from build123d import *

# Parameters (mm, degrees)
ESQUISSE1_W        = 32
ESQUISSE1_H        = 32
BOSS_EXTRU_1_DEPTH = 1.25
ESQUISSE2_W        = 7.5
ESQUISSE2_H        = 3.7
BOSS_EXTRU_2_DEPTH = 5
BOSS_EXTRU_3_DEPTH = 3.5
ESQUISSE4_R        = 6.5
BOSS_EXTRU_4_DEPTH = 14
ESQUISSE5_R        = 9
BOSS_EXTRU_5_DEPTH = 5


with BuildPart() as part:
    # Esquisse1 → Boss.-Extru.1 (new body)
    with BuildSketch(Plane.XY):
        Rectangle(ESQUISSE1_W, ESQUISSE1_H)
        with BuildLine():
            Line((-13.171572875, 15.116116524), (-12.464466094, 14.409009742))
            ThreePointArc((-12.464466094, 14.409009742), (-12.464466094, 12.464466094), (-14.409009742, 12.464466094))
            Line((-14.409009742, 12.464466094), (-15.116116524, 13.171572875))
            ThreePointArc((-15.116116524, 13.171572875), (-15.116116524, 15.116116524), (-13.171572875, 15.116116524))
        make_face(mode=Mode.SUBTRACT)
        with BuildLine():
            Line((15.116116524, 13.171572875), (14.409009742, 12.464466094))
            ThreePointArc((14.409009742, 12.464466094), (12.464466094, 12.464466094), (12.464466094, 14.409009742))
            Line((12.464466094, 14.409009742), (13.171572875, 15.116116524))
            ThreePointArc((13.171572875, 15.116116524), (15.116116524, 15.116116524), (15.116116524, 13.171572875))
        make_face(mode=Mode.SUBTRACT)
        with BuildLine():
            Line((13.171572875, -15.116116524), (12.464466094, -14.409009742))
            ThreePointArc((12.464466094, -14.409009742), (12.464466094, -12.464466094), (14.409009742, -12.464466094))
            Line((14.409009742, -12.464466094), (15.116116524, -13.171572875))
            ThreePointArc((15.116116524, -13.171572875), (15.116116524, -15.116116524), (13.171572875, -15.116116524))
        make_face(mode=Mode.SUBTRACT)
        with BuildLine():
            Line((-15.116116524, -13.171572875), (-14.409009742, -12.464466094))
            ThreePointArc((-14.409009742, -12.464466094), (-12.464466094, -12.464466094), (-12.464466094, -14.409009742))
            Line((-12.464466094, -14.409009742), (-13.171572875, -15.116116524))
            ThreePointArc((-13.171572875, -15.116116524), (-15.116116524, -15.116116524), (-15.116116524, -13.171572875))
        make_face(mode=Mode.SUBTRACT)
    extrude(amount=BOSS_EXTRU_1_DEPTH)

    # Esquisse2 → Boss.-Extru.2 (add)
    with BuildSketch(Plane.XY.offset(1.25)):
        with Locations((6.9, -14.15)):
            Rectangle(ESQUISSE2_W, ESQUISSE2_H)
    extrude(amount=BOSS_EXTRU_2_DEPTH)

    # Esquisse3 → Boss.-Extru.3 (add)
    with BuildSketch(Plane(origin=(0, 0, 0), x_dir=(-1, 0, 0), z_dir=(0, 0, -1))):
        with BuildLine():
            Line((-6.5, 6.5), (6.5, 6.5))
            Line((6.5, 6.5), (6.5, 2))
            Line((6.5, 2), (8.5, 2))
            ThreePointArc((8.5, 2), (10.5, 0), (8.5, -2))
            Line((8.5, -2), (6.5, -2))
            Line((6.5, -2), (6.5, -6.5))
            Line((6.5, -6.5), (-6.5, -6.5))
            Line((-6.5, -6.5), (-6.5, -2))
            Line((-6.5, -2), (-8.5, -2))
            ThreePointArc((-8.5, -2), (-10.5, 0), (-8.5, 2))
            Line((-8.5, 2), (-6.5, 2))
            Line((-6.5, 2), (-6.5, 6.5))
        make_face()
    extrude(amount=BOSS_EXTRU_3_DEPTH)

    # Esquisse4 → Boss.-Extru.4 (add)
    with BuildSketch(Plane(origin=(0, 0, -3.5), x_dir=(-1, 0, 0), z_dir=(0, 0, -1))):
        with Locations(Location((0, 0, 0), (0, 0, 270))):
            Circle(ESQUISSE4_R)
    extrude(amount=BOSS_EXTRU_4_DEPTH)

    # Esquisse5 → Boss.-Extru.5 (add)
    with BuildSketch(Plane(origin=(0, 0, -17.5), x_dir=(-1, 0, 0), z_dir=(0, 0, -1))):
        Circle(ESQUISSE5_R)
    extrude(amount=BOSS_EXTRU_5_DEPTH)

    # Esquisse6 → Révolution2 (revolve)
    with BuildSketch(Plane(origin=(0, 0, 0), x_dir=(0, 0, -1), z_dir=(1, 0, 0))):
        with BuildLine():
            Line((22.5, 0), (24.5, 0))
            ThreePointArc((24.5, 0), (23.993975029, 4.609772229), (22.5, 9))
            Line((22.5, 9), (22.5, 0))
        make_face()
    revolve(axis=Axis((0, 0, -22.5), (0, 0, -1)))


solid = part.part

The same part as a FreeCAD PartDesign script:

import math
import FreeCAD as App
import Part
import Sketcher

doc = App.newDocument("Part")
body = doc.addObject("PartDesign::Body", "Body")

# Sketch on XY plane
sketch1 = doc.addObject("Sketcher::SketchObject", "Sketch")
body.addObject(sketch1)
sketch1.AttachmentSupport = (doc.XY_Plane, [""])
sketch1.MapMode = "FlatFace"
sketch1.addGeometry([
    Part.LineSegment(App.Vector(-16, 16, 0), App.Vector(-16, -16, 0)),  # 0
    Part.LineSegment(App.Vector(-16, -16, 0), App.Vector(16, -16, 0)),  # 1
    Part.LineSegment(App.Vector(16, -16, 0), App.Vector(16, 16, 0)),  # 2
    Part.LineSegment(App.Vector(16, 16, 0), App.Vector(-16, 16, 0)),  # 3
    Part.ArcOfCircle(Part.Circle(App.Vector(-14.143845, -14.143845, 0), App.Vector(0, 0, 1), 1.375), math.radians(135), math.radians(315)),  # 4
    Part.LineSegment(App.Vector(-15.116117, -13.171573, 0), App.Vector(-14.40901, -12.464466, 0)),  # 5
    Part.ArcOfCircle(Part.Circle(App.Vector(-13.436738, -13.436738, 0), App.Vector(0, 0, 1), 1.375), math.radians(-45), math.radians(135)),  # 6
    Part.LineSegment(App.Vector(-12.464466, -14.40901, 0), App.Vector(-13.171573, -15.116117, 0)),  # 7
    Part.ArcOfCircle(Part.Circle(App.Vector(14.143845, -14.143845, 0), App.Vector(0, 0, 1), 1.375), math.radians(-135), math.radians(45)),  # 8
    Part.LineSegment(App.Vector(13.171573, -15.116117, 0), App.Vector(12.464466, -14.40901, 0)),  # 9
    Part.ArcOfCircle(Part.Circle(App.Vector(13.436738, -13.436738, 0), App.Vector(0, 0, 1), 1.375), math.radians(45), math.radians(225)),  # 10
    Part.LineSegment(App.Vector(14.40901, -12.464466, 0), App.Vector(15.116117, -13.171573, 0)),  # 11
    Part.ArcOfCircle(Part.Circle(App.Vector(-14.143845, 14.143845, 0), App.Vector(0, 0, 1), 1.375), math.radians(45), math.radians(225)),  # 12
    Part.LineSegment(App.Vector(-13.171573, 15.116117, 0), App.Vector(-12.464466, 14.40901, 0)),  # 13
    Part.ArcOfCircle(Part.Circle(App.Vector(-13.436738, 13.436738, 0), App.Vector(0, 0, 1), 1.375), math.radians(-135), math.radians(45)),  # 14
    Part.LineSegment(App.Vector(-14.40901, 12.464466, 0), App.Vector(-15.116117, 13.171573, 0)),  # 15
    Part.ArcOfCircle(Part.Circle(App.Vector(14.143845, 14.143845, 0), App.Vector(0, 0, 1), 1.375), math.radians(-45), math.radians(135)),  # 16
    Part.LineSegment(App.Vector(15.116117, 13.171573, 0), App.Vector(14.40901, 12.464466, 0)),  # 17
    Part.ArcOfCircle(Part.Circle(App.Vector(13.436738, 13.436738, 0), App.Vector(0, 0, 1), 1.375), math.radians(135), math.radians(315)),  # 18
    Part.LineSegment(App.Vector(12.464466, 14.40901, 0), App.Vector(13.171573, 15.116117, 0)),  # 19
], False)
sketch1.addConstraint([
    Sketcher.Constraint("Coincident", 0, 2, 1, 1),
    Sketcher.Constraint("Coincident", 1, 2, 2, 1),
    Sketcher.Constraint("Coincident", 2, 2, 3, 1),
    Sketcher.Constraint("Coincident", 3, 2, 0, 1),
    Sketcher.Constraint("Tangent", 4, 1, 5, 1),
    Sketcher.Constraint("Tangent", 5, 2, 6, 2),
    Sketcher.Constraint("Tangent", 6, 1, 7, 1),
    Sketcher.Constraint("Tangent", 7, 2, 4, 2),
    Sketcher.Constraint("Tangent", 8, 1, 9, 1),
    Sketcher.Constraint("Tangent", 9, 2, 10, 2),
    Sketcher.Constraint("Tangent", 10, 1, 11, 1),
    Sketcher.Constraint("Tangent", 11, 2, 8, 2),
    Sketcher.Constraint("Tangent", 12, 1, 13, 1),
    Sketcher.Constraint("Tangent", 13, 2, 14, 2),
    Sketcher.Constraint("Tangent", 14, 1, 15, 1),
    Sketcher.Constraint("Tangent", 15, 2, 12, 2),
    Sketcher.Constraint("Tangent", 16, 1, 17, 1),
    Sketcher.Constraint("Tangent", 17, 2, 18, 2),
    Sketcher.Constraint("Tangent", 18, 1, 19, 1),
    Sketcher.Constraint("Tangent", 19, 2, 16, 2),
    Sketcher.Constraint("Vertical", 0),
    Sketcher.Constraint("Horizontal", 1),
    Sketcher.Constraint("Vertical", 2),
    Sketcher.Constraint("Horizontal", 3),
    Sketcher.Constraint("Equal", 4, 6),
    Sketcher.Constraint("Equal", 6, 8),
    Sketcher.Constraint("Equal", 8, 10),
    Sketcher.Constraint("Equal", 10, 12),
    Sketcher.Constraint("Equal", 12, 14),
    Sketcher.Constraint("Equal", 14, 16),
    Sketcher.Constraint("Equal", 16, 18),
    Sketcher.Constraint("Symmetric", 8, 3, 12, 3, -1, 1),
    Sketcher.Constraint("Symmetric", 10, 3, 14, 3, -1, 1),
    Sketcher.Constraint("Symmetric", 4, 3, 16, 3, -1, 1),
    Sketcher.Constraint("Symmetric", 6, 3, 18, 3, -1, 1),
    Sketcher.Constraint("Symmetric", 0, 2, 2, 2, -1, 1),
    Sketcher.Constraint("Symmetric", 4, 3, 8, 3, -2),
    Sketcher.Constraint("Symmetric", 6, 3, 10, 3, -2),
    Sketcher.Constraint("Perpendicular", 7, 9),
    Sketcher.Constraint("Equal", 3, 0),
    Sketcher.Constraint("DistanceX", 1, 1, 1, 2, 32.0),
    Sketcher.Constraint("Distance", 5, 1.0),
    Sketcher.Constraint("Radius", 4, 1.375),
    Sketcher.Constraint("DistanceX", 5, 2, -1, 1, 14.40901),
    Sketcher.Constraint("DistanceY", 6, 1, -1, 1, 14.40901),
])
pad1 = doc.addObject("PartDesign::Pad", "Pad")
body.addObject(pad1)
pad1.Profile = sketch1
pad1.Length = 1.25

# Sketch on XY plane
sketch2 = doc.addObject("Sketcher::SketchObject", "Sketch001")
body.addObject(sketch2)
sketch2.AttachmentSupport = (doc.XY_Plane, [""])
sketch2.MapMode = "FlatFace"
sketch2.AttachmentOffset = App.Placement(App.Vector(0, 0, 1.25), App.Rotation())
sketch2.addGeometry([
    Part.LineSegment(App.Vector(3.15, -12.3, 0), App.Vector(3.15, -16, 0)),
    Part.LineSegment(App.Vector(3.15, -16, 0), App.Vector(10.65, -16, 0)),
    Part.LineSegment(App.Vector(10.65, -16, 0), App.Vector(10.65, -12.3, 0)),
    Part.LineSegment(App.Vector(10.65, -12.3, 0), App.Vector(3.15, -12.3, 0)),
], False)
sketch2.addConstraint([
    Sketcher.Constraint("Coincident", 0, 2, 1, 1),
    Sketcher.Constraint("Coincident", 1, 2, 2, 1),
    Sketcher.Constraint("Coincident", 2, 2, 3, 1),
    Sketcher.Constraint("Coincident", 3, 2, 0, 1),
    Sketcher.Constraint("Vertical", 0),
    Sketcher.Constraint("Horizontal", 1),
    Sketcher.Constraint("Vertical", 2),
    Sketcher.Constraint("Horizontal", 3),
    Sketcher.Constraint("DistanceX", 1, 1, 1, 2, 7.5),
    Sketcher.Constraint("DistanceY", 0, 2, 0, 1, 3.7),
    Sketcher.Constraint("DistanceY", 0, 2, -1, 1, 16.0),
    Sketcher.Constraint("DistanceX", -1, 1, 0, 2, 3.15),
])
pad2 = doc.addObject("PartDesign::Pad", "Pad001")
body.addObject(pad2)
pad2.Profile = sketch2
pad2.Length = 5

# Sketch on XY plane
sketch3 = doc.addObject("Sketcher::SketchObject", "Sketch002")
body.addObject(sketch3)
sketch3.AttachmentSupport = (doc.XY_Plane, [""])
sketch3.MapMode = "FlatFace"
sketch3.addGeometry([
    Part.LineSegment(App.Vector(-6.5, 6.5, 0), App.Vector(6.5, 6.5, 0)),  # 0
    Part.LineSegment(App.Vector(6.5, 6.5, 0), App.Vector(6.5, 2, 0)),  # 1
    Part.LineSegment(App.Vector(6.5, 2, 0), App.Vector(8.5, 2, 0)),  # 2
    Part.ArcOfCircle(Part.Circle(App.Vector(8.5, 0, 0), App.Vector(0, 0, 1), 2), math.radians(-90), math.radians(90)),  # 3
    Part.LineSegment(App.Vector(8.5, -2, 0), App.Vector(6.5, -2, 0)),  # 4
    Part.LineSegment(App.Vector(6.5, -2, 0), App.Vector(6.5, -6.5, 0)),  # 5
    Part.LineSegment(App.Vector(6.5, -6.5, 0), App.Vector(-6.5, -6.5, 0)),  # 6
    Part.LineSegment(App.Vector(-6.5, -6.5, 0), App.Vector(-6.5, -2, 0)),  # 7
    Part.LineSegment(App.Vector(-6.5, -2, 0), App.Vector(-8.5, -2, 0)),  # 8
    Part.ArcOfCircle(Part.Circle(App.Vector(-8.5, 0, 0), App.Vector(0, 0, 1), 2), math.radians(90), math.radians(270)),  # 9
    Part.LineSegment(App.Vector(-8.5, 2, 0), App.Vector(-6.5, 2, 0)),  # 10
    Part.LineSegment(App.Vector(-6.5, 2, 0), App.Vector(-6.5, 6.5, 0)),  # 11
], False)
sketch3.addConstraint([
    Sketcher.Constraint("Coincident", 0, 2, 1, 1),
    Sketcher.Constraint("Coincident", 1, 2, 2, 1),
    Sketcher.Constraint("Tangent", 2, 2, 3, 2),
    Sketcher.Constraint("Tangent", 3, 1, 4, 1),
    Sketcher.Constraint("Coincident", 4, 2, 5, 1),
    Sketcher.Constraint("Coincident", 5, 2, 6, 1),
    Sketcher.Constraint("Coincident", 6, 2, 7, 1),
    Sketcher.Constraint("Coincident", 7, 2, 8, 1),
    Sketcher.Constraint("Tangent", 8, 2, 9, 2),
    Sketcher.Constraint("Tangent", 9, 1, 10, 1),
    Sketcher.Constraint("Coincident", 10, 2, 11, 1),
    Sketcher.Constraint("Coincident", 11, 2, 0, 1),
    Sketcher.Constraint("Horizontal", 0),
    Sketcher.Constraint("Vertical", 1),
    Sketcher.Constraint("Horizontal", 2),
    Sketcher.Constraint("Horizontal", 4),
    Sketcher.Constraint("Vertical", 5),
    Sketcher.Constraint("Horizontal", 6),
    Sketcher.Constraint("Vertical", 7),
    Sketcher.Constraint("Horizontal", 8),
    Sketcher.Constraint("Horizontal", 10),
    Sketcher.Constraint("Vertical", 11),
    Sketcher.Constraint("Equal", 3, 9),
    Sketcher.Constraint("Symmetric", 3, 3, 9, 3, -1, 1),
    Sketcher.Constraint("Symmetric", 0, 2, 6, 2, -1, 1),
    Sketcher.Constraint("Symmetric", 4, 2, 7, 2, -2),
    Sketcher.Constraint("Vertical", 7, 2, 10, 2),
    Sketcher.Constraint("Radius", 3, 2.0),
    Sketcher.Constraint("DistanceX", 0, 1, 0, 2, 13.0),
    Sketcher.Constraint("DistanceX", 2, 1, 2, 2, 2.0),
    Sketcher.Constraint("DistanceY", 1, 2, 1, 1, 4.5),
])
pad3 = doc.addObject("PartDesign::Pad", "Pad002")
body.addObject(pad3)
pad3.Profile = sketch3
pad3.Length = 3.5
pad3.Reversed = True

# Sketch on XY plane
sketch4 = doc.addObject("Sketcher::SketchObject", "Sketch003")
body.addObject(sketch4)
sketch4.AttachmentSupport = (doc.XY_Plane, [""])
sketch4.MapMode = "FlatFace"
sketch4.AttachmentOffset = App.Placement(App.Vector(0, 0, -3.5), App.Rotation())
sketch4.addGeometry(Part.Circle(App.Vector(0, 0, 0), App.Vector(0, 0, 1), 6.5), False)
sketch4.addConstraint([
    Sketcher.Constraint("Coincident", 0, 3, -1, 1),
    Sketcher.Constraint("Diameter", 0, 13.0),
])
pad4 = doc.addObject("PartDesign::Pad", "Pad003")
body.addObject(pad4)
pad4.Profile = sketch4
pad4.Length = 14
pad4.Reversed = True

# Sketch on XY plane
sketch5 = doc.addObject("Sketcher::SketchObject", "Sketch004")
body.addObject(sketch5)
sketch5.AttachmentSupport = (doc.XY_Plane, [""])
sketch5.MapMode = "FlatFace"
sketch5.AttachmentOffset = App.Placement(App.Vector(0, 0, -17.5), App.Rotation())
sketch5.addGeometry(Part.Circle(App.Vector(0, 0, 0), App.Vector(0, 0, 1), 9), False)
sketch5.addConstraint([
    Sketcher.Constraint("Coincident", 0, 3, -1, 1),
    Sketcher.Constraint("Diameter", 0, 18.0),
])
pad5 = doc.addObject("PartDesign::Pad", "Pad004")
body.addObject(pad5)
pad5.Profile = sketch5
pad5.Length = 5
pad5.Reversed = True

# Sketch on YZ plane
sketch6 = doc.addObject("Sketcher::SketchObject", "Sketch005")
body.addObject(sketch6)
sketch6.AttachmentSupport = (doc.YZ_Plane, [""])
sketch6.MapMode = "FlatFace"
sketch6.addGeometry([
    Part.LineSegment(App.Vector(0, -22.5, 0), App.Vector(0, -24.5, 0)),
    Part.ArcOfCircle(Part.Circle(App.Vector(0, -3.25, 0), App.Vector(0, 0, 1), 21.25), math.radians(-90), math.radians(-64.942385)),
    Part.LineSegment(App.Vector(9, -22.5, 0), App.Vector(0, -22.5, 0)),
], False)
sketch6.addConstraint([
    Sketcher.Constraint("Coincident", 0, 2, 1, 1),
    Sketcher.Constraint("Coincident", 1, 2, 2, 1),
    Sketcher.Constraint("Coincident", 2, 2, 0, 1),
    Sketcher.Constraint("Vertical", 0),
    Sketcher.Constraint("Horizontal", 2),
    Sketcher.Constraint("PointOnObject", 1, 3, -2),
    Sketcher.Constraint("PointOnObject", 0, 2, -2),
    Sketcher.Constraint("DistanceX", 2, 2, 2, 1, 9.0),
    Sketcher.Constraint("DistanceY", 0, 2, 0, 1, 2.0),
    Sketcher.Constraint("DistanceY", 0, 2, -1, 1, 24.5),
])
revolution = doc.addObject("PartDesign::Revolution", "Revolution")
body.addObject(revolution)
revolution.Profile = sketch6
revolution.ReferenceAxis = (sketch6, ["V_Axis"])
revolution.Angle = 360

doc.recompute()
